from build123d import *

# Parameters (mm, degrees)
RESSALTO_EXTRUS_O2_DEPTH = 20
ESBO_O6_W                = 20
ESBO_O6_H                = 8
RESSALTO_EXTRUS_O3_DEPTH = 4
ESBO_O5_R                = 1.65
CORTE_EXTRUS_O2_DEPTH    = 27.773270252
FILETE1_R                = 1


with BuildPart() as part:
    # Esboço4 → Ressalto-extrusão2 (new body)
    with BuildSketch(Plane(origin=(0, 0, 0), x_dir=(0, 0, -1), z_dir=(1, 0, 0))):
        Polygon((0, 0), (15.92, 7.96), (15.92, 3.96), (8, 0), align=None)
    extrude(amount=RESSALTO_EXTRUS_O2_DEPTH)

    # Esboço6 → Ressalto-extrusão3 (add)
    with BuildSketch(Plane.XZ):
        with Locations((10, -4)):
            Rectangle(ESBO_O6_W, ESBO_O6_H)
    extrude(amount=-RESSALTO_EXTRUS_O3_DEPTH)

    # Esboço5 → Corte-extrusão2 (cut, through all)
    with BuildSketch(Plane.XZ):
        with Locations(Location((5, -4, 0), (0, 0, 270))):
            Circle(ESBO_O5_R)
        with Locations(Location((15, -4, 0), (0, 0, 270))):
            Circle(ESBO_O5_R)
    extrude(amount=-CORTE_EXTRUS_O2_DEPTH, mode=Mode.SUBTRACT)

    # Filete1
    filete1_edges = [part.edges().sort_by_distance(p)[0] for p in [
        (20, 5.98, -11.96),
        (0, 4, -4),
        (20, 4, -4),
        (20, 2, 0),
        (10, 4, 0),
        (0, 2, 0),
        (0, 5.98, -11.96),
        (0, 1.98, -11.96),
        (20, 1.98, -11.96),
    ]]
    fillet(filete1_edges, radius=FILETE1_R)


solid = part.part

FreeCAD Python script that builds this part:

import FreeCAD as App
import Part
import Sketcher
Q = App.Units.Quantity


def edges_at(feature, points):
    """Names of the edges that pass closest to the given points."""
    edges = feature.Shape.Edges
    near = lambda p: min(range(len(edges)), key=lambda i: edges[i].distToShape(Part.Vertex(*p))[0])
    return sorted({f"Edge{near(p) + 1}" for p in points})


def add_polygon(sketch, points):
    """Adds a closed chain of lines whose ends are joined by coincident constraints."""
    first, n = sketch.GeometryCount, len(points)
    for a, b in zip(points, points[1:] + points[:1]):
        sketch.addGeometry(Part.LineSegment(App.Vector(*a, 0), App.Vector(*b, 0)), False)
    for i in range(n):
        sketch.addConstraint(Sketcher.Constraint("Coincident", first + i, 2, first + (i + 1) % n, 1))

doc = App.newDocument("Part")
params = doc.addObject("Spreadsheet::Sheet", "Params")
for row, (alias, value) in enumerate([
    ("sketch1_width", "4 mm"),
    ("sketch1_height", "8 mm"),
    ("pad1_length", "20 mm"),
    ("sketch2_width", "20 mm"),
    ("sketch2_height", "8 mm"),
    ("pad2_length", "4 mm"),
    ("sketch3_diameter", "3.3 mm"),
    ("fillet_radius", "1 mm"),
], start=1):
    params.set(f"A{row}", alias)
    params.set(f"B{row}", "=" + value)
    params.setAlias(f"B{row}", alias)

body = doc.addObject("PartDesign::Body", "Body")

# Sketch on YZ plane
sketch1 = doc.addObject("Sketcher::SketchObject", "Sketch")
body.addObject(sketch1)
sketch1.AttachmentSupport = (doc.YZ_Plane, [""])
sketch1.MapMode = "FlatFace"
add_polygon(sketch1, [(8, -15.9), (0, 0), (0, -8), (4, -15.9)])  # lines 0-3
sketch1.addConstraint(Sketcher.Constraint("Vertical", 1))
sketch1.addConstraint(Sketcher.Constraint("Horizontal", 3))
sketch1.addConstraint(Sketcher.Constraint("Coincident", 0, 2, -1, 1))
sketch1.addConstraint(Sketcher.Constraint("Parallel", 0, 2))
sketch1.addConstraint(Sketcher.Constraint("DistanceX", 3, 1, 3, 2, Q("4 mm")))
sketch1.addConstraint(Sketcher.Constraint("DistanceY", 1, 2, 1, 1, Q("8 mm")))
sketch1.addConstraint(Sketcher.Constraint("DistanceX", -1, 1, 2, 2, Q("3.96 mm")))
sketch1.setExpression("Constraints[8]", "Params.sketch1_width")
sketch1.setExpression("Constraints[9]", "Params.sketch1_height")
pad1 = doc.addObject("PartDesign::Pad", "Pad")
body.addObject(pad1)
pad1.Profile = sketch1
pad1.setExpression("Length", "Params.pad1_length")

# Sketch on XZ plane
sketch2 = doc.addObject("Sketcher::SketchObject", "Sketch001")
body.addObject(sketch2)
sketch2.AttachmentSupport = (doc.XZ_Plane, [""])
sketch2.MapMode = "FlatFace"
add_polygon(sketch2, [(0, 0), (0, -8), (20, -8), (20, 0)])  # lines 0-3
sketch2.addConstraint(Sketcher.Constraint("Vertical", 0))
sketch2.addConstraint(Sketcher.Constraint("Horizontal", 1))
sketch2.addConstraint(Sketcher.Constraint("Vertical", 2))
sketch2.addConstraint(Sketcher.Constraint("Horizontal", 3))
sketch2.addConstraint(Sketcher.Constraint("Coincident", 3, 2, -1, 1))
sketch2.addConstraint(Sketcher.Constraint("DistanceX", 1, 1, 1, 2, Q("20 mm")))
sketch2.addConstraint(Sketcher.Constraint("DistanceY", 0, 2, 0, 1, Q("8 mm")))
sketch2.setExpression("Constraints[9]", "Params.sketch2_width")
sketch2.setExpression("Constraints[10]", "Params.sketch2_height")
pad2 = doc.addObject("PartDesign::Pad", "Pad001")
body.addObject(pad2)
pad2.Profile = sketch2
pad2.setExpression("Length", "Params.pad2_length")
pad2.Reversed = True

# Sketch on XZ plane
sketch3 = doc.addObject("Sketcher::SketchObject", "Sketch002")
body.addObject(sketch3)
sketch3.AttachmentSupport = (doc.XZ_Plane, [""])
sketch3.MapMode = "FlatFace"
sketch3.addGeometry(Part.Circle(App.Vector(5, -4, 0), App.Vector(0, 0, 1), 1.6), False)
sketch3.addGeometry(Part.Circle(App.Vector(15, -4, 0), App.Vector(0, 0, 1), 1.6), False)
sketch3.addConstraint(Sketcher.Constraint("Equal", 0, 1))
sketch3.addConstraint(Sketcher.Constraint("Horizontal", 0, 3, 1, 3))
sketch3.addConstraint(Sketcher.Constraint("Diameter", 0, Q("3.3 mm")))
sketch3.addConstraint(Sketcher.Constraint("DistanceX", -1, 1, 0, 3, Q("5 mm")))
sketch3.addConstraint(Sketcher.Constraint("DistanceY", 0, 3, -1, 1, Q("4 mm")))
sketch3.addConstraint(Sketcher.Constraint("DistanceX", -1, 1, 1, 3, Q("15 mm")))
sketch3.setExpression("Constraints[2]", "Params.sketch3_diameter")
pocket1 = doc.addObject("PartDesign::Pocket", "Pocket")
body.addObject(pocket1)
pocket1.Profile = sketch3
pocket1.Type = "ThroughAll"
doc.recompute()

fillet = doc.addObject("PartDesign::Fillet", "Fillet")
body.addObject(fillet)
fillet.Base = (pocket1, edges_at(pocket1, [
    (20, 5.98, -11.96),
    (0, 4, -4),
    (20, 4, -4),
    (20, 2, 0),
    (10, 4, 0),
    (0, 2, 0),
    (0, 5.98, -11.96),
    (0, 1.98, -11.96),
    (20, 1.98, -11.96),
]))
fillet.setExpression("Radius", "Params.fillet_radius")

doc.recompute()
